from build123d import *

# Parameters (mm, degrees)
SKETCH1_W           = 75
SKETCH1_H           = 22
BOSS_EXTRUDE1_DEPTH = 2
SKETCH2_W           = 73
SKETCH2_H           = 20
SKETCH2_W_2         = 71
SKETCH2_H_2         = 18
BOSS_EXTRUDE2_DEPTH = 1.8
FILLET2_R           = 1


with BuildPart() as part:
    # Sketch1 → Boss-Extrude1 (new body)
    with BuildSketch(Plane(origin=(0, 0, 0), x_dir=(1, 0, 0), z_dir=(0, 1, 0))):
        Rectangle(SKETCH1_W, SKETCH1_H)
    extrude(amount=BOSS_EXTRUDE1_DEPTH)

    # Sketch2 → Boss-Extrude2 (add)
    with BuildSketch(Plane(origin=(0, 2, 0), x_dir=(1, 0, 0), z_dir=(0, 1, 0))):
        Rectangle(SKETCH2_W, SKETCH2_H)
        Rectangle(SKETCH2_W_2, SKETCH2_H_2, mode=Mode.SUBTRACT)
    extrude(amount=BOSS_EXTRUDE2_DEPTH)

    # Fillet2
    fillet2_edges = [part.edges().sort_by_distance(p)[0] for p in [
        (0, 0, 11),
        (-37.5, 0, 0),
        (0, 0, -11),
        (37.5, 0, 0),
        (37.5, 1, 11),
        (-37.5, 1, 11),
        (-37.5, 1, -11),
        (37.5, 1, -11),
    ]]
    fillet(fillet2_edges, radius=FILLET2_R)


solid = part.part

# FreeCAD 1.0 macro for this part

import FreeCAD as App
import Part
import Sketcher
from FreeCAD import Vector
Q = App.Units.Quantity


def edges_at(feature, points):
    """Names of the edges that pass closest to the given points."""
    edges = feature.Shape.Edges
    near = lambda p: min(range(len(edges)), key=lambda i: edges[i].distToShape(Part.Vertex(*p))[0])
    return sorted({f"Edge{near(p) + 1}" for p in points})

doc = App.newDocument("Part")
body = doc.addObject("PartDesign::Body", "Body")

# Sketch on XZ plane
sketch1 = body.newObject("Sketcher::SketchObject", "Sketch")
sketch1.AttachmentSupport = (doc.getObject("XZ_Plane"), [""])
sketch1.MapMode = "FlatFace"
sketch1.addGeometry([
    Part.LineSegment(Vector(-38, -11, 0), Vector(-38, 11, 0)),
    Part.LineSegment(Vector(-38, 11, 0), Vector(38, 11, 0)),
    Part.LineSegment(Vector(38, 11, 0), Vector(38, -11, 0)),
    Part.LineSegment(Vector(38, -11, 0), Vector(-38, -11, 0)),
], False)
sketch1.addConstraint([
    Sketcher.Constraint("Coincident", 0, 2, 1, 1),
    Sketcher.Constraint("Coincident", 1, 2, 2, 1),
    Sketcher.Constraint("Coincident", 2, 2, 3, 1),
    Sketcher.Constraint("Coincident", 3, 2, 0, 1),
    Sketcher.Constraint("Vertical", 0),
    Sketcher.Constraint("Horizontal", 1),
    Sketcher.Constraint("Vertical", 2),
    Sketcher.Constraint("Horizontal", 3),
    Sketcher.Constraint("Symmetric", 0, 2, 2, 2, -1, 1),
    Sketcher.Constraint("DistanceX", 1, 1, 1, 2, Q("75 mm")),
    Sketcher.Constraint("DistanceY", 0, 1, 0, 2, Q("22 mm")),
])
pad1 = body.newObject("PartDesign::Pad", "Pad")
pad1.Profile = sketch1
pad1.Length = 2
pad1.Reversed = True

# Sketch on XZ plane
sketch2 = body.newObject("Sketcher::SketchObject", "Sketch001")
sketch2.AttachmentSupport = (doc.getObject("XZ_Plane"), [""])
sketch2.MapMode = "FlatFace"
sketch2.AttachmentOffset = App.Placement(Vector(0, 0, -2), App.Rotation())
sketch2.addGeometry([
    Part.LineSegment(Vector(-36, -10, 0), Vector(-36, 10, 0)),  # 0
    Part.LineSegment(Vector(-36, 10, 0), Vector(36, 10, 0)),  # 1
    Part.LineSegment(Vector(36, 10, 0), Vector(36, -10, 0)),  # 2
    Part.LineSegment(Vector(36, -10, 0), Vector(-36, -10, 0)),  # 3
    Part.LineSegment(Vector(36, 9, 0), Vector(-36, 9, 0)),  # 4
    Part.LineSegment(Vector(-36, 9, 0), Vector(-36, -9, 0)),  # 5
    Part.LineSegment(Vector(-36, -9, 0), Vector(36, -9, 0)),  # 6
    Part.LineSegment(Vector(36, -9, 0), Vector(36, 9, 0)),  # 7
], False)
sketch2.addConstraint([
    Sketcher.Constraint("Coincident", 0, 2, 1, 1),
    Sketcher.Constraint("Coincident", 1, 2, 2, 1),
    Sketcher.Constraint("Coincident", 2, 2, 3, 1),
    Sketcher.Constraint("Coincident", 3, 2, 0, 1),
    Sketcher.Constraint("Coincident", 4, 2, 5, 1),
    Sketcher.Constraint("Coincident", 5, 2, 6, 1),
    Sketcher.Constraint("Coincident", 6, 2, 7, 1),
    Sketcher.Constraint("Coincident", 7, 2, 4, 1),
    Sketcher.Constraint("Vertical", 0),
    Sketcher.Constraint("Horizontal", 1),
    Sketcher.Constraint("Vertical", 2),
    Sketcher.Constraint("Horizontal", 3),
    Sketcher.Constraint("Horizontal", 4),
    Sketcher.Constraint("Vertical", 5),
    Sketcher.Constraint("Horizontal", 6),
    Sketcher.Constraint("Vertical", 7),
    Sketcher.Constraint("Symmetric", 0, 2, 2, 2, -1, 1),
    Sketcher.Constraint("Symmetric", 4, 2, 6, 2, -1, 1),
    Sketcher.Constraint("DistanceX", 1, 1, 1, 2, Q("73 mm")),
    Sketcher.Constraint("DistanceX", 4, 2, 4, 1, Q("71 mm")),
    Sketcher.Constraint("DistanceY", 0, 1, 0, 2, Q("20 mm")),
    Sketcher.Constraint("DistanceY", 5, 2, 5, 1, Q("18 mm")),
])
pad2 = body.newObject("PartDesign::Pad", "Pad001")
pad2.Profile = sketch2
pad2.Length = 1.8
pad2.Reversed = True
doc.recompute()

fillet = body.newObject("PartDesign::Fillet", "Fillet")
fillet.Base = (pad2, edges_at(pad2, [
    (0, 0, 11),
    (-37.5, 0, 0),
    (0, 0, -11),
    (37.5, 0, 0),
    (37.5, 1, 11),
    (-37.5, 1, 11),
    (-37.5, 1, -11),
    (37.5, 1, -11),
]))
fillet.Radius = 1

doc.recompute()
